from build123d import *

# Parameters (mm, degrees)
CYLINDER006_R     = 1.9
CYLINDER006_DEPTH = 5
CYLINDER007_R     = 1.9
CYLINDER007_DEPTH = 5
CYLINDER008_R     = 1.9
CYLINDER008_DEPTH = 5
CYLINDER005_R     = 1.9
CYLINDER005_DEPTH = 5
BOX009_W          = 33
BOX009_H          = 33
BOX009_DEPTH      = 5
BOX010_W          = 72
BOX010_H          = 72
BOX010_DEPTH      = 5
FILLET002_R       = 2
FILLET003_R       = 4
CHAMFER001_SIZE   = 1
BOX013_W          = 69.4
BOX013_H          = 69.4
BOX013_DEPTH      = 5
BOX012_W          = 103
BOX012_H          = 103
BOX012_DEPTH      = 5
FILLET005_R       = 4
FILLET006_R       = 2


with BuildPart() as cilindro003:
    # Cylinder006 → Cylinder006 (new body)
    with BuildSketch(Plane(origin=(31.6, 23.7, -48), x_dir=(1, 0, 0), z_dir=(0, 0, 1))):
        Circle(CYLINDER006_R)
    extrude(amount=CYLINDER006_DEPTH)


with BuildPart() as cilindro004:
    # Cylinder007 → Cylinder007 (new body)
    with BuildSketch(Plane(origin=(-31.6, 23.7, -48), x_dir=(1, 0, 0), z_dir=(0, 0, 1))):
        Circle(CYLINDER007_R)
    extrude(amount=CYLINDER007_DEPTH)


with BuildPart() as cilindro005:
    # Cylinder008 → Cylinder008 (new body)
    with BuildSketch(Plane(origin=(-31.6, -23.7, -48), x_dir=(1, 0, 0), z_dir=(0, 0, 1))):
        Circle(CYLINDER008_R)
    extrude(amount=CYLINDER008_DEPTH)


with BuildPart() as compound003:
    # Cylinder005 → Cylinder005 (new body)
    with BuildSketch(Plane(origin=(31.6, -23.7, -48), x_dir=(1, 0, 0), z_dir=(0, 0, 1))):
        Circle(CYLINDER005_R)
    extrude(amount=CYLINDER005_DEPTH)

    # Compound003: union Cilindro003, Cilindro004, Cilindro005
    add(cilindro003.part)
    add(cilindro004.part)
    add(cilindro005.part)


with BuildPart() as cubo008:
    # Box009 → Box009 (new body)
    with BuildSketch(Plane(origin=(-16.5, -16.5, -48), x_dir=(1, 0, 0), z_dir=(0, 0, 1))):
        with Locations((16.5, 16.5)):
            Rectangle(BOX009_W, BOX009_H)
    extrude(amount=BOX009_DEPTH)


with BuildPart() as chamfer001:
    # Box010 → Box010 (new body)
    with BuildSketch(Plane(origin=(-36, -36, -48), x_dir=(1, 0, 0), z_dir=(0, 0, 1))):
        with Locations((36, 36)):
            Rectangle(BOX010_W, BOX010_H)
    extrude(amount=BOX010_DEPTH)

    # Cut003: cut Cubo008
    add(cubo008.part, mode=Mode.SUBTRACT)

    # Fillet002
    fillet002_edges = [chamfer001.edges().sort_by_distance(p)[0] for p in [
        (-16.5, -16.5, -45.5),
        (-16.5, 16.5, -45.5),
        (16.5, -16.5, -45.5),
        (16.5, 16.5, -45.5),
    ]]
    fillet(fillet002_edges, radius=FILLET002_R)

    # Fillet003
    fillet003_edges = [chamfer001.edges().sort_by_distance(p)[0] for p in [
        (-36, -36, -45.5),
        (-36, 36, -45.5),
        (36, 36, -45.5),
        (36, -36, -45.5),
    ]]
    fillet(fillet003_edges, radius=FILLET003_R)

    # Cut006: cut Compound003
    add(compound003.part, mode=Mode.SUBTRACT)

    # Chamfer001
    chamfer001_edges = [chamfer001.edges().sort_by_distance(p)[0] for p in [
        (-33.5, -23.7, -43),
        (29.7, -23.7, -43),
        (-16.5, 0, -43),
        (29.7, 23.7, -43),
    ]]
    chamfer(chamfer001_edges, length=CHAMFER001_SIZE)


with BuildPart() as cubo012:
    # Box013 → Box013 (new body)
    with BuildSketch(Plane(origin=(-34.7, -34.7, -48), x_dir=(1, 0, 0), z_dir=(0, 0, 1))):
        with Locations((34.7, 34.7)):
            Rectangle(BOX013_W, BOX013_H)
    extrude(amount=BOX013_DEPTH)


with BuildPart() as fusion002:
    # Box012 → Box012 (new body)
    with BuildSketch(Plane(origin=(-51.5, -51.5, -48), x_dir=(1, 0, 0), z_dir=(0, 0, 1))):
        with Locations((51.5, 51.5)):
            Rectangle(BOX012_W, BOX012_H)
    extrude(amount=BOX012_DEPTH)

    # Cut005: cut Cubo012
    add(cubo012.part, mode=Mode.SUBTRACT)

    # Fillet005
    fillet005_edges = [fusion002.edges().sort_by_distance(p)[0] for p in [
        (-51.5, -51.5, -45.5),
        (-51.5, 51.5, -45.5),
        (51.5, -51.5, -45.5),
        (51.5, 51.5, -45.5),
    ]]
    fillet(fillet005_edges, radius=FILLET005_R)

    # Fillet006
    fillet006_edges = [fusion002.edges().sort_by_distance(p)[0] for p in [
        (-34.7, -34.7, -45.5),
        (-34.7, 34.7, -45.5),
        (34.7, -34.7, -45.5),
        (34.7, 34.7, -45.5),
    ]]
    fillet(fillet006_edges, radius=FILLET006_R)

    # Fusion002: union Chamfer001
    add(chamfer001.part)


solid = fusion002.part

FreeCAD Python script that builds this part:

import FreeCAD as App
import Part
import Sketcher
from FreeCAD import Vector


def edges_at(feature, points):
    """Names of the edges that pass closest to the given points."""
    edges = feature.Shape.Edges
    near = lambda p: min(range(len(edges)), key=lambda i: edges[i].distToShape(Part.Vertex(*p))[0])
    return sorted({f"Edge{near(p) + 1}" for p in points})


def add_polygon(sketch, points):
    """Adds a closed chain of lines whose ends are joined by coincident constraints."""
    first, n = sketch.GeometryCount, len(points)
    for a, b in zip(points, points[1:] + points[:1]):
        sketch.addGeometry(Part.LineSegment(App.Vector(*a, 0), App.Vector(*b, 0)), False)
    for i in range(n):
        sketch.addConstraint(Sketcher.Constraint("Coincident", first + i, 2, first + (i + 1) % n, 1))

doc = App.newDocument("Part")
body = doc.addObject("PartDesign::Body", "Body")

# Sketch on XY plane
sketch1 = body.newObject("Sketcher::SketchObject", "Sketch")
sketch1.AttachmentSupport = (doc.getObject("XY_Plane"), [""])
sketch1.MapMode = "FlatFace"
sketch1.AttachmentOffset = App.Placement(Vector(0, 0, -48), App.Rotation())
sketch1.addGeometry(Part.Circle(Vector(31.6, 23.7, 0), Vector(0, 0, 1), 1.9), False)
sketch1.addConstraint([
    Sketcher.Constraint("Diameter", 0, 3.8),
    Sketcher.Constraint("DistanceX", -1, 1, 0, 3, 31.6),
    Sketcher.Constraint("DistanceY", -1, 1, 0, 3, 23.7),
])
pad1 = body.newObject("PartDesign::Pad", "Pad")
pad1.Profile = sketch1
pad1.Length = 5
body2 = doc.addObject("PartDesign::Body", "Body001")

# Sketch on XY plane
sketch2 = body2.newObject("Sketcher::SketchObject", "Sketch001")
sketch2.AttachmentSupport = (doc.getObject("XY_Plane001"), [""])
sketch2.MapMode = "FlatFace"
sketch2.AttachmentOffset = App.Placement(Vector(0, 0, -48), App.Rotation())
sketch2.addGeometry(Part.Circle(Vector(-31.6, 23.7, 0), Vector(0, 0, 1), 1.9), False)
sketch2.addConstraint([
    Sketcher.Constraint("Diameter", 0, 3.8),
    Sketcher.Constraint("DistanceX", 0, 3, -1, 1, 31.6),
    Sketcher.Constraint("DistanceY", -1, 1, 0, 3, 23.7),
])
pad2 = body2.newObject("PartDesign::Pad", "Pad001")
pad2.Profile = sketch2
pad2.Length = 5
body3 = doc.addObject("PartDesign::Body", "Body002")

# Sketch on XY plane
sketch3 = body3.newObject("Sketcher::SketchObject", "Sketch002")
sketch3.AttachmentSupport = (doc.getObject("XY_Plane002"), [""])
sketch3.MapMode = "FlatFace"
sketch3.AttachmentOffset = App.Placement(Vector(0, 0, -48), App.Rotation())
sketch3.addGeometry(Part.Circle(Vector(-31.6, -23.7, 0), Vector(0, 0, 1), 1.9), False)
sketch3.addConstraint([
    Sketcher.Constraint("Diameter", 0, 3.8),
    Sketcher.Constraint("DistanceX", 0, 3, -1, 1, 31.6),
    Sketcher.Constraint("DistanceY", 0, 3, -1, 1, 23.7),
])
pad3 = body3.newObject("PartDesign::Pad", "Pad002")
pad3.Profile = sketch3
pad3.Length = 5
body4 = doc.addObject("PartDesign::Body", "Body003")
body4.AllowCompound = True

# Sketch on XY plane
sketch4 = body4.newObject("Sketcher::SketchObject", "Sketch003")
sketch4.AttachmentSupport = (doc.getObject("XY_Plane003"), [""])
sketch4.MapMode = "FlatFace"
sketch4.AttachmentOffset = App.Placement(Vector(0, 0, -48), App.Rotation())
sketch4.addGeometry(Part.Circle(Vector(31.6, -23.7, 0), Vector(0, 0, 1), 1.9), False)
sketch4.addConstraint([
    Sketcher.Constraint("Diameter", 0, 3.8),
    Sketcher.Constraint("DistanceX", -1, 1, 0, 3, 31.6),
    Sketcher.Constraint("DistanceY", 0, 3, -1, 1, 23.7),
])
pad4 = body4.newObject("PartDesign::Pad", "Pad003")
pad4.Profile = sketch4
pad4.Length = 5
doc.recompute()

boolean = body4.newObject("PartDesign::Boolean", "Boolean")
boolean.Type = "Fuse"
boolean.addObjects([body])
doc.recompute()

boolean2 = body4.newObject("PartDesign::Boolean", "Boolean001")
boolean2.Type = "Fuse"
boolean2.addObjects([body2])
doc.recompute()

boolean3 = body4.newObject("PartDesign::Boolean", "Boolean002")
boolean3.Type = "Fuse"
boolean3.addObjects([body3])
body5 = doc.addObject("PartDesign::Body", "Body004")

# Sketch on XY plane
sketch5 = body5.newObject("Sketcher::SketchObject", "Sketch004")
sketch5.AttachmentSupport = (doc.getObject("XY_Plane004"), [""])
sketch5.MapMode = "FlatFace"
sketch5.AttachmentOffset = App.Placement(Vector(0, 0, -48), App.Rotation())
add_polygon(sketch5, [(-16, 16), (-16, -16), (16, -16), (16, 16)])  # lines 0-3
sketch5.addConstraint([
    Sketcher.Constraint("Vertical", 0),
    Sketcher.Constraint("Horizontal", 1),
    Sketcher.Constraint("Vertical", 2),
    Sketcher.Constraint("Horizontal", 3),
    Sketcher.Constraint("Symmetric", 0, 2, 2, 2, -1, 1),
    Sketcher.Constraint("Equal", 3, 0),
    Sketcher.Constraint("DistanceX", 1, 1, 1, 2, 33.0),
])
pad5 = body5.newObject("PartDesign::Pad", "Pad004")
pad5.Profile = sketch5
pad5.Length = 5
body6 = doc.addObject("PartDesign::Body", "Body005")

# Sketch on XY plane
sketch6 = body6.newObject("Sketcher::SketchObject", "Sketch005")
sketch6.AttachmentSupport = (doc.getObject("XY_Plane005"), [""])
sketch6.MapMode = "FlatFace"
sketch6.AttachmentOffset = App.Placement(Vector(0, 0, -48), App.Rotation())
add_polygon(sketch6, [(-36, 36), (-36, -36), (36, -36), (36, 36)])  # lines 0-3
sketch6.addConstraint([
    Sketcher.Constraint("Vertical", 0),
    Sketcher.Constraint("Horizontal", 1),
    Sketcher.Constraint("Vertical", 2),
    Sketcher.Constraint("Horizontal", 3),
    Sketcher.Constraint("Symmetric", 0, 2, 2, 2, -1, 1),
    Sketcher.Constraint("Equal", 3, 0),
    Sketcher.Constraint("DistanceX", 1, 1, 1, 2, 72.0),
])
pad6 = body6.newObject("PartDesign::Pad", "Pad005")
pad6.Profile = sketch6
pad6.Length = 5
doc.recompute()

boolean4 = body6.newObject("PartDesign::Boolean", "Boolean003")
boolean4.Type = "Cut"
boolean4.addObjects([body5])
doc.recompute()

fillet = body6.newObject("PartDesign::Fillet", "Fillet")
fillet.Base = (boolean4, edges_at(boolean4, [
    (-16.5, -16.5, -45.5),
    (-16.5, 16.5, -45.5),
    (16.5, -16.5, -45.5),
    (16.5, 16.5, -45.5),
]))
fillet.Radius = 2
doc.recompute()

fillet2 = body6.newObject("PartDesign::Fillet", "Fillet001")
fillet2.Base = (fillet, edges_at(fillet, [
    (-36, -36, -45.5),
    (-36, 36, -45.5),
    (36, 36, -45.5),
    (36, -36, -45.5),
]))
fillet2.Radius = 4
doc.recompute()

boolean5 = body6.newObject("PartDesign::Boolean", "Boolean004")
boolean5.Type = "Cut"
boolean5.addObjects([body4])
doc.recompute()

chamfer = body6.newObject("PartDesign::Chamfer", "Chamfer")
chamfer.Base = (boolean5, edges_at(boolean5, [
    (-33.5, -23.7, -43),
    (29.7, -23.7, -43),
    (-16.5, 0, -43),
    (29.7, 23.7, -43),
]))
chamfer.Size = 1
body7 = doc.addObject("PartDesign::Body", "Body006")

# Sketch on XY plane
sketch7 = body7.newObject("Sketcher::SketchObject", "Sketch006")
sketch7.AttachmentSupport = (doc.getObject("XY_Plane006"), [""])
sketch7.MapMode = "FlatFace"
sketch7.AttachmentOffset = App.Placement(Vector(0, 0, -48), App.Rotation())
add_polygon(sketch7, [(-35, 35), (-35, -35), (35, -35), (35, 35)])  # lines 0-3
sketch7.addConstraint([
    Sketcher.Constraint("Vertical", 0),
    Sketcher.Constraint("Horizontal", 1),
    Sketcher.Constraint("Vertical", 2),
    Sketcher.Constraint("Horizontal", 3),
    Sketcher.Constraint("Symmetric", 0, 2, 2, 2, -1, 1),
    Sketcher.Constraint("Equal", 3, 0),
    Sketcher.Constraint("DistanceX", 1, 1, 1, 2, 69.4),
])
pad7 = body7.newObject("PartDesign::Pad", "Pad006")
pad7.Profile = sketch7
pad7.Length = 5
body8 = doc.addObject("PartDesign::Body", "Body007")

# Sketch on XY plane
sketch8 = body8.newObject("Sketcher::SketchObject", "Sketch007")
sketch8.AttachmentSupport = (doc.getObject("XY_Plane007"), [""])
sketch8.MapMode = "FlatFace"
sketch8.AttachmentOffset = App.Placement(Vector(0, 0, -48), App.Rotation())
add_polygon(sketch8, [(-52, 52), (-52, -52), (52, -52), (52, 52)])  # lines 0-3
sketch8.addConstraint([
    Sketcher.Constraint("Vertical", 0),
    Sketcher.Constraint("Horizontal", 1),
    Sketcher.Constraint("Vertical", 2),
    Sketcher.Constraint("Horizontal", 3),
    Sketcher.Constraint("Symmetric", 0, 2, 2, 2, -1, 1),
    Sketcher.Constraint("Equal", 3, 0),
    Sketcher.Constraint("DistanceX", 1, 1, 1, 2, 103.0),
])
pad8 = body8.newObject("PartDesign::Pad", "Pad007")
pad8.Profile = sketch8
pad8.Length = 5
doc.recompute()

boolean6 = body8.newObject("PartDesign::Boolean", "Boolean005")
boolean6.Type = "Cut"
boolean6.addObjects([body7])
doc.recompute()

fillet3 = body8.newObject("PartDesign::Fillet", "Fillet002")
fillet3.Base = (boolean6, edges_at(boolean6, [
    (-51.5, -51.5, -45.5),
    (-51.5, 51.5, -45.5),
    (51.5, -51.5, -45.5),
    (51.5, 51.5, -45.5),
]))
fillet3.Radius = 4
doc.recompute()

fillet4 = body8.newObject("PartDesign::Fillet", "Fillet003")
fillet4.Base = (fillet3, edges_at(fillet3, [
    (-34.7, -34.7, -45.5),
    (-34.7, 34.7, -45.5),
    (34.7, -34.7, -45.5),
    (34.7, 34.7, -45.5),
]))
fillet4.Radius = 2
doc.recompute()

boolean7 = body8.newObject("PartDesign::Boolean", "Boolean006")
boolean7.Type = "Fuse"
boolean7.addObjects([body6])

doc.recompute()
